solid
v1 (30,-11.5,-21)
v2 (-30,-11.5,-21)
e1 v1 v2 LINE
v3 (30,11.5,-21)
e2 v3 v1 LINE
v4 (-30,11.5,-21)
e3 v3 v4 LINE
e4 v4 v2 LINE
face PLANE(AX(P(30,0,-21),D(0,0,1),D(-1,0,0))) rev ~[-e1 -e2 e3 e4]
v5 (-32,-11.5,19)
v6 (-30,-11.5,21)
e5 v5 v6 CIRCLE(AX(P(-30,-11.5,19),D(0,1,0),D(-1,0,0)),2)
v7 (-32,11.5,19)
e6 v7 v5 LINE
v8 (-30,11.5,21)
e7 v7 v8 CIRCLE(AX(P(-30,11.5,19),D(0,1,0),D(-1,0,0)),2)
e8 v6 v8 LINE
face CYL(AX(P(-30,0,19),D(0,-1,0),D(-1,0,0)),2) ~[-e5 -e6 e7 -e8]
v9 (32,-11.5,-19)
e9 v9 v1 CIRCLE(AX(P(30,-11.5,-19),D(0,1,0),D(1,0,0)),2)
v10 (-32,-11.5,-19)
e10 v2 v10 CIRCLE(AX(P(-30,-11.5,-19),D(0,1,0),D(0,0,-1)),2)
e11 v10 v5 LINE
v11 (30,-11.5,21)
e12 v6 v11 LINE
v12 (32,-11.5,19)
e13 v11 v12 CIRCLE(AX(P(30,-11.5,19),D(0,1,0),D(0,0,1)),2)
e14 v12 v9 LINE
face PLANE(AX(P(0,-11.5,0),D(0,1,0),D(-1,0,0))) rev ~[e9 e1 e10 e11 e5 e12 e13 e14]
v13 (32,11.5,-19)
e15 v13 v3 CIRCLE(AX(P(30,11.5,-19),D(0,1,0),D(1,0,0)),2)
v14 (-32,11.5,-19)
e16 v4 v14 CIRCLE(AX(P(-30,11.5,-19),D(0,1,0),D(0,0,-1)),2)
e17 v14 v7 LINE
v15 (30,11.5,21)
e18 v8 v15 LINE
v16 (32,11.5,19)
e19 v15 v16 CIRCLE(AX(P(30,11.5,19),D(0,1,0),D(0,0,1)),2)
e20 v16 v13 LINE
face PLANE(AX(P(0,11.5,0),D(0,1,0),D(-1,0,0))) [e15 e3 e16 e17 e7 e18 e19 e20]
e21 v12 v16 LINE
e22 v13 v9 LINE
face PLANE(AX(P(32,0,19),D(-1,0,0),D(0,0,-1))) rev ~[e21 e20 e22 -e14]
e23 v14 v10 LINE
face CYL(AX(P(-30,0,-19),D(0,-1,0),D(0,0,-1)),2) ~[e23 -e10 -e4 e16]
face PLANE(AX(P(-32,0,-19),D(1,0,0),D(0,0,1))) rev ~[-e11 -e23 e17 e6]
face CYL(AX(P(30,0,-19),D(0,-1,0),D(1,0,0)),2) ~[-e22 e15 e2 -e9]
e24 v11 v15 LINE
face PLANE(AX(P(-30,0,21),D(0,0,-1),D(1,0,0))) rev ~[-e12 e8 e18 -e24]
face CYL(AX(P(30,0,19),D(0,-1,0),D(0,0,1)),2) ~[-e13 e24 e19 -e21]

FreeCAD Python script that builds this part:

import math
import FreeCAD as App
import Part
import Sketcher

V = App.Vector

doc = App.newDocument("Part")
body = doc.addObject("PartDesign::Body", "Body")

sketch1 = body.newObject("Sketcher::SketchObject", "Sketch")
sketch1.AttachmentSupport = (doc.getObject("XZ_Plane"), [""])
sketch1.MapMode = "FlatFace"
sketch1.addGeometry([
    Part.ArcOfCircle(Part.Circle(V(-30, 19, 0), V(0, 0, 1), 2), math.radians(90), math.radians(180)),
    Part.LineSegment(V(-30, 21, 0), V(30, 21, 0)),
    Part.ArcOfCircle(Part.Circle(V(30, 19, 0), V(0, 0, 1), 2), math.radians(0), math.radians(90)),
    Part.LineSegment(V(32, 19, 0), V(32, -19, 0)),
    Part.ArcOfCircle(Part.Circle(V(30, -19, 0), V(0, 0, 1), 2), math.radians(-90), math.radians(0)),
    Part.LineSegment(V(30, -21, 0), V(-30, -21, 0)),
    Part.ArcOfCircle(Part.Circle(V(-30, -19, 0), V(0, 0, 1), 2), math.radians(180), math.radians(270)),
    Part.LineSegment(V(-32, -19, 0), V(-32, 19, 0)),
], False)
sketch1.addConstraint([
    Sketcher.Constraint("Tangent", 0, 1, 1, 1),
    Sketcher.Constraint("Tangent", 1, 2, 2, 2),
    Sketcher.Constraint("Tangent", 2, 1, 3, 1),
    Sketcher.Constraint("Tangent", 3, 2, 4, 2),
    Sketcher.Constraint("Tangent", 4, 1, 5, 1),
    Sketcher.Constraint("Tangent", 5, 2, 6, 2),
    Sketcher.Constraint("Tangent", 6, 1, 7, 1),
    Sketcher.Constraint("Tangent", 7, 2, 0, 2),
    Sketcher.Constraint("Horizontal", 1),
    Sketcher.Constraint("Vertical", 3),
    Sketcher.Constraint("Horizontal", 5),
    Sketcher.Constraint("Vertical", 7),
    Sketcher.Constraint("Equal", 0, 2),
    Sketcher.Constraint("Equal", 2, 4),
    Sketcher.Constraint("Equal", 4, 6),
    Sketcher.Constraint("Symmetric", 0, 3, 4, 3, -1, 1),
    Sketcher.Constraint("Radius", 0, 2.0),
    Sketcher.Constraint("DistanceY", 4, 1, 1, 2, 42.0),
    Sketcher.Constraint("DistanceX", 1, 1, 1, 2, 60.0),
])
pad1 = body.newObject("PartDesign::Pad", "Pad")
pad1.Profile = sketch1
pad1.Length = 23
pad1.Midplane = True

doc.recompute()
